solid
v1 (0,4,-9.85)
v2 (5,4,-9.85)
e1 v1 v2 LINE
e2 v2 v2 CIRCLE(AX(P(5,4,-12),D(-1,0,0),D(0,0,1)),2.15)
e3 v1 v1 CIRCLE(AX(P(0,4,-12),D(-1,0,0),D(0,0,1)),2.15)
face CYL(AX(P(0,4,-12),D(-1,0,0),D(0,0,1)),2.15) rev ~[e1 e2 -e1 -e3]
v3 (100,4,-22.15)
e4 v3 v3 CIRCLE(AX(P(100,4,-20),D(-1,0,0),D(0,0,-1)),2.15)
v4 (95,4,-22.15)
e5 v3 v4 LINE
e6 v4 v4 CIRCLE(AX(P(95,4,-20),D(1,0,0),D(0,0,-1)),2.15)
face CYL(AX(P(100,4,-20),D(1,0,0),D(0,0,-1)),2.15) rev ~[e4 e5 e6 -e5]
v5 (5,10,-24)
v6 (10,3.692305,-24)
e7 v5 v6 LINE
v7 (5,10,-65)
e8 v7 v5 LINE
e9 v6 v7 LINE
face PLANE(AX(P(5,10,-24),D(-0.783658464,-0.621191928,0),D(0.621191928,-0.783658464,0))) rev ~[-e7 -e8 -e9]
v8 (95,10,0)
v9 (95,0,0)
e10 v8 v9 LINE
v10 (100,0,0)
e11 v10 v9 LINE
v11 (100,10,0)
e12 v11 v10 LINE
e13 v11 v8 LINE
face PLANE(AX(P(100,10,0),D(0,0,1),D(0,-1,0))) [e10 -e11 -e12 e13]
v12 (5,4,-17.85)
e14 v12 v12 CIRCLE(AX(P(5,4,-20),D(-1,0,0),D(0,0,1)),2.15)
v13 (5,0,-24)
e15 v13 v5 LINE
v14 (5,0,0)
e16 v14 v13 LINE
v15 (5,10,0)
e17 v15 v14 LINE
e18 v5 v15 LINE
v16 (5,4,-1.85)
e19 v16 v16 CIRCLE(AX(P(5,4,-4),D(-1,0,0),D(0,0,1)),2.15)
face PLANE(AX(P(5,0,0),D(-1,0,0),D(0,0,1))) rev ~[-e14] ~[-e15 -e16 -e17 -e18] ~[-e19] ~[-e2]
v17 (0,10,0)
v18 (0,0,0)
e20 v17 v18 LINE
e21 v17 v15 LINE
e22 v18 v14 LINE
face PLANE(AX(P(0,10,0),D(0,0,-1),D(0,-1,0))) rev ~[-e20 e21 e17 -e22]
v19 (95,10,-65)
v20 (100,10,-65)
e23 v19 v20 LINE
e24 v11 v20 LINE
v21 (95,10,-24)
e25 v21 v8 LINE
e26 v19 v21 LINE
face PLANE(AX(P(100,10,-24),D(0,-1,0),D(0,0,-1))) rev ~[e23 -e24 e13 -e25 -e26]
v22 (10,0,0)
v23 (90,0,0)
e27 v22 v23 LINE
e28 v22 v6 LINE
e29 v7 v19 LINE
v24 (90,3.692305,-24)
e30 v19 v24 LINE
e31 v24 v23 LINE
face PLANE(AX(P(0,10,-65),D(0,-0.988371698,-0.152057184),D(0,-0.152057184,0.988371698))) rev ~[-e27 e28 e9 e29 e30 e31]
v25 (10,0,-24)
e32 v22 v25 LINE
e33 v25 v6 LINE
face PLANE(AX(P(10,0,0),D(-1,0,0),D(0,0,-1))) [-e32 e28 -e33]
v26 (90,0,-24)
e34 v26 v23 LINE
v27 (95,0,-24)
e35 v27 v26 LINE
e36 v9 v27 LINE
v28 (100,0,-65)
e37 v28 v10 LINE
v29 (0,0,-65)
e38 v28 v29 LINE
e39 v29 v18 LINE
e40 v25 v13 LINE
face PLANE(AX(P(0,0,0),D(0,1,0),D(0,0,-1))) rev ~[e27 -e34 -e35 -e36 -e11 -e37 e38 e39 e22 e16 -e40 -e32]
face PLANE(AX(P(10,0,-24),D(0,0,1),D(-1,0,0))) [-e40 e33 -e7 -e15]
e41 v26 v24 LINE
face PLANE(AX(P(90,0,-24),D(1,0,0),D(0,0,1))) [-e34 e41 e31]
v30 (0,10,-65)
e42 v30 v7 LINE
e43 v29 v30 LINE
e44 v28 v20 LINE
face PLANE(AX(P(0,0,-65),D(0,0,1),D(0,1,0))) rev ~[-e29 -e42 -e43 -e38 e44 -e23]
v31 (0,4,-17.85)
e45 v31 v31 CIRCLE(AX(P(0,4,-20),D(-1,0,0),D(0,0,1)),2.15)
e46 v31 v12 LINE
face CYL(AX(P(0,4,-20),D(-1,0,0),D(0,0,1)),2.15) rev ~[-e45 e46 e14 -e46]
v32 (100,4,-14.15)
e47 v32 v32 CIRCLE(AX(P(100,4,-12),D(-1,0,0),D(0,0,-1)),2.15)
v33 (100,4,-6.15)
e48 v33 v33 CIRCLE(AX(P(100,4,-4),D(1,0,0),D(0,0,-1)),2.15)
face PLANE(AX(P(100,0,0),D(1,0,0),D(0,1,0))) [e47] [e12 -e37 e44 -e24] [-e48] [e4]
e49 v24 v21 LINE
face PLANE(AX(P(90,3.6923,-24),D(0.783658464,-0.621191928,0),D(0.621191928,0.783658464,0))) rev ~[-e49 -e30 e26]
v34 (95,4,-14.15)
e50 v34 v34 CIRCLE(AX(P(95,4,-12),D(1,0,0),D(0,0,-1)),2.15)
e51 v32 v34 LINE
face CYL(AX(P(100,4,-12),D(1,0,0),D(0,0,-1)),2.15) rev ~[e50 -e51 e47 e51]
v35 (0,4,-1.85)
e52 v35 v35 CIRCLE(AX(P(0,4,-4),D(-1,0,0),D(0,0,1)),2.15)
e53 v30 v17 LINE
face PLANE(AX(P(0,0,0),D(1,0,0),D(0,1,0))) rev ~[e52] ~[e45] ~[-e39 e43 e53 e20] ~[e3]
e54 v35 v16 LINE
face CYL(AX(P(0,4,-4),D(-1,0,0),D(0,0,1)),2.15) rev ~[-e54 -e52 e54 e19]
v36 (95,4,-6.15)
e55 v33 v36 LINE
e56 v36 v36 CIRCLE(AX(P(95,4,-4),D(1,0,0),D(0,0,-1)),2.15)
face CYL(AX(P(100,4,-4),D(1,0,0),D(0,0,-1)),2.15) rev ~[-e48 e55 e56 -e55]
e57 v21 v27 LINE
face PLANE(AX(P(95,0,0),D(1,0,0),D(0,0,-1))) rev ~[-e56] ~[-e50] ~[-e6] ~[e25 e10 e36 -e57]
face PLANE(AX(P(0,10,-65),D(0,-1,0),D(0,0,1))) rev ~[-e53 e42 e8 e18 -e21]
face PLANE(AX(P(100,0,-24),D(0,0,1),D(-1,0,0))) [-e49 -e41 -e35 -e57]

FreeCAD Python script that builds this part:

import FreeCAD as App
import Part
import Sketcher
from FreeCAD import Vector


def add_polygon(sketch, points):
    """Adds a closed chain of lines whose ends are joined by coincident constraints."""
    first, n = sketch.GeometryCount, len(points)
    for a, b in zip(points, points[1:] + points[:1]):
        sketch.addGeometry(Part.LineSegment(App.Vector(*a, 0), App.Vector(*b, 0)), False)
    for i in range(n):
        sketch.addConstraint(Sketcher.Constraint("Coincident", first + i, 2, first + (i + 1) % n, 1))

doc = App.newDocument("Part")
body = doc.addObject("PartDesign::Body", "Body")

sketch1 = body.newObject("Sketcher::SketchObject", "Sketch")
sketch1.AttachmentSupport = (doc.getObject("YZ_Plane"), [""])
sketch1.MapMode = "FlatFace"
add_polygon(sketch1, [(10, -65), (0, 0), (0, -65)])
sketch1.addConstraint(Sketcher.Constraint("Vertical", 1))
sketch1.addConstraint(Sketcher.Constraint("Horizontal", 2))
sketch1.addConstraint(Sketcher.Constraint("Coincident", 0, 2, -1, 1))
sketch1.addConstraint(Sketcher.Constraint("DistanceX", 2, 1, 2, 2, 10.0))
sketch1.addConstraint(Sketcher.Constraint("DistanceY", 1, 2, 1, 1, 65.0))
pad1 = body.newObject("PartDesign::Pad", "Pad")
pad1.Profile = sketch1
pad1.Length = 100

sketch2 = body.newObject("Sketcher::SketchObject", "Sketch001")
sketch2.AttachmentSupport = (doc.getObject("XZ_Plane"), [""])
sketch2.MapMode = "FlatFace"
add_polygon(sketch2, [(100, 0), (90, 0), (90, -24), (100, -24)])
sketch2.addConstraint(Sketcher.Constraint("Horizontal", 0))
sketch2.addConstraint(Sketcher.Constraint("Vertical", 1))
sketch2.addConstraint(Sketcher.Constraint("Horizontal", 2))
sketch2.addConstraint(Sketcher.Constraint("Vertical", 3))
sketch2.addConstraint(Sketcher.Constraint("PointOnObject", 0, 2, -1))
sketch2.addConstraint(Sketcher.Constraint("DistanceX", 0, 2, 0, 1, 10.0))
sketch2.addConstraint(Sketcher.Constraint("DistanceY", 1, 2, 1, 1, 24.0))
sketch2.addConstraint(Sketcher.Constraint("DistanceX", -1, 1, 0, 2, 90.0))
pocket1 = body.newObject("PartDesign::Pocket", "Pocket")
pocket1.Profile = sketch2
pocket1.Length = 5

sketch3 = body.newObject("Sketcher::SketchObject", "Sketch002")
sketch3.AttachmentSupport = (doc.getObject("YZ_Plane"), [""])
sketch3.MapMode = "FlatFace"
sketch3.AttachmentOffset = App.Placement(Vector(0, 0, 100), App.Rotation())
add_polygon(sketch3, [(3.692308, -23.999999), (10, -65), (10, 0), (0, 0), (0, -24)])
sketch3.addGeometry(Part.Circle(Vector(4, -20, 0), Vector(0, 0, 1), 2.15), False)
sketch3.addGeometry(Part.Circle(Vector(4, -12, 0), Vector(0, 0, 1), 2.15), False)
sketch3.addGeometry(Part.Circle(Vector(4, -4, 0), Vector(0, 0, 1), 2.15), False)
sketch3.addConstraint(Sketcher.Constraint("Vertical", 1))
sketch3.addConstraint(Sketcher.Constraint("Horizontal", 2))
sketch3.addConstraint(Sketcher.Constraint("Vertical", 3))
sketch3.addConstraint(Sketcher.Constraint("Horizontal", 4))
sketch3.addConstraint(Sketcher.Constraint("Coincident", 2, 2, -1, 1))
sketch3.addConstraint(Sketcher.Constraint("Equal", 5, 6))
sketch3.addConstraint(Sketcher.Constraint("Equal", 6, 7))
sketch3.addConstraint(Sketcher.Constraint("Vertical", 5, 3, 6, 3))
sketch3.addConstraint(Sketcher.Constraint("Vertical", 6, 3, 7, 3))
sketch3.addConstraint(Sketcher.Constraint("Diameter", 5, 4.3))
sketch3.addConstraint(Sketcher.Constraint("DistanceX", 2, 2, 2, 1, 10.0))
sketch3.addConstraint(Sketcher.Constraint("DistanceY", 3, 2, 3, 1, 24.0))
sketch3.addConstraint(Sketcher.Constraint("DistanceX", -1, 1, 5, 3, 4.0))
sketch3.addConstraint(Sketcher.Constraint("DistanceY", 7, 3, -1, 1, 4.0))
sketch3.addConstraint(Sketcher.Constraint("DistanceY", 5, 3, 6, 3, 8.0))
sketch3.addConstraint(Sketcher.Constraint("DistanceY", 6, 3, 7, 3, 8.0))
sketch3.addConstraint(Sketcher.Constraint("DistanceY", 1, 1, 1, 2, 65.0))
sketch3.addConstraint(Sketcher.Constraint("DistanceX", 4, 1, 4, 2, 3.6923))
pad2 = body.newObject("PartDesign::Pad", "Pad001")
pad2.Profile = sketch3
pad2.Length = 5
pad2.Reversed = True

sketch4 = body.newObject("Sketcher::SketchObject", "Sketch003")
sketch4.AttachmentSupport = (doc.getObject("XZ_Plane"), [""])
sketch4.MapMode = "FlatFace"
add_polygon(sketch4, [(10, 0), (0, 0), (0, -24), (10, -24)])
sketch4.addConstraint(Sketcher.Constraint("Horizontal", 0))
sketch4.addConstraint(Sketcher.Constraint("Vertical", 1))
sketch4.addConstraint(Sketcher.Constraint("Horizontal", 2))
sketch4.addConstraint(Sketcher.Constraint("Vertical", 3))
sketch4.addConstraint(Sketcher.Constraint("Coincident", 0, 2, -1, 1))
sketch4.addConstraint(Sketcher.Constraint("DistanceX", 0, 2, 0, 1, 10.0))
sketch4.addConstraint(Sketcher.Constraint("DistanceY", 1, 2, 1, 1, 24.0))
pocket2 = body.newObject("PartDesign::Pocket", "Pocket001")
pocket2.Profile = sketch4
pocket2.Length = 5

sketch5 = body.newObject("Sketcher::SketchObject", "Sketch004")
sketch5.AttachmentSupport = (doc.getObject("YZ_Plane"), [""])
sketch5.MapMode = "FlatFace"
add_polygon(sketch5, [(10, -65), (0, -65), (0, 0), (10, 0)])
sketch5.addGeometry(Part.Circle(Vector(4, -20, 0), Vector(0, 0, 1), 2.15), False)
sketch5.addGeometry(Part.Circle(Vector(4, -12, 0), Vector(0, 0, 1), 2.15), False)
sketch5.addGeometry(Part.Circle(Vector(4, -4, 0), Vector(0, 0, 1), 2.15), False)
sketch5.addConstraint(Sketcher.Constraint("Horizontal", 0))
sketch5.addConstraint(Sketcher.Constraint("Vertical", 1))
sketch5.addConstraint(Sketcher.Constraint("Horizontal", 2))
sketch5.addConstraint(Sketcher.Constraint("Vertical", 3))
sketch5.addConstraint(Sketcher.Constraint("Coincident", 1, 2, -1, 1))
sketch5.addConstraint(Sketcher.Constraint("Equal", 4, 5))
sketch5.addConstraint(Sketcher.Constraint("Equal", 5, 6))
sketch5.addConstraint(Sketcher.Constraint("Vertical", 4, 3, 5, 3))
sketch5.addConstraint(Sketcher.Constraint("Vertical", 5, 3, 6, 3))
sketch5.addConstraint(Sketcher.Constraint("Diameter", 4, 4.3))
sketch5.addConstraint(Sketcher.Constraint("DistanceX", -1, 1, 4, 3, 4.0))
sketch5.addConstraint(Sketcher.Constraint("DistanceY", 6, 3, -1, 1, 4.0))
sketch5.addConstraint(Sketcher.Constraint("DistanceY", 4, 3, 5, 3, 8.0))
sketch5.addConstraint(Sketcher.Constraint("DistanceY", 5, 3, 6, 3, 8.0))
sketch5.addConstraint(Sketcher.Constraint("DistanceX", 0, 2, 0, 1, 10.0))
sketch5.addConstraint(Sketcher.Constraint("DistanceY", 1, 1, 1, 2, 65.0))
pad3 = body.newObject("PartDesign::Pad", "Pad002")
pad3.Profile = sketch5
pad3.Length = 5

sketch6 = body.newObject("Sketcher::SketchObject", "Sketch005")
sketch6.AttachmentSupport = (doc.getObject("XY_Plane"), [""])
sketch6.MapMode = "FlatFace"
sketch6.AttachmentOffset = App.Placement(Vector(0, 0, -24), App.Rotation())
add_polygon(sketch6, [(10, 3.6923), (5, 10), (5, 3.6923)])
sketch6.addConstraint(Sketcher.Constraint("Vertical", 1))
sketch6.addConstraint(Sketcher.Constraint("Horizontal", 2))
sketch6.addConstraint(Sketcher.Constraint("DistanceX", 2, 1, 2, 2, 5.0))
sketch6.addConstraint(Sketcher.Constraint("DistanceX", -1, 1, 0, 2, 5.0))
sketch6.addConstraint(Sketcher.Constraint("DistanceY", -1, 1, 0, 2, 10.0))
sketch6.addConstraint(Sketcher.Constraint("Distance", 0, 8.049))
pad4 = body.newObject("PartDesign::Pad", "Pad003")
pad4.Profile = sketch6
pad4.Length = 41
pad4.Reversed = True

sketch7 = body.newObject("Sketcher::SketchObject", "Sketch006")
sketch7.AttachmentSupport = (doc.getObject("XY_Plane"), [""])
sketch7.MapMode = "FlatFace"
sketch7.AttachmentOffset = App.Placement(Vector(0, 0, -24), App.Rotation())
add_polygon(sketch7, [(95, 10), (90, 3.6923), (95, 3.6923)])
sketch7.addConstraint(Sketcher.Constraint("Horizontal", 1))
sketch7.addConstraint(Sketcher.Constraint("Vertical", 2))
sketch7.addConstraint(Sketcher.Constraint("DistanceX", 1, 1, 1, 2, 5.0))
sketch7.addConstraint(Sketcher.Constraint("DistanceX", -1, 1, 0, 2, 90.0))
sketch7.addConstraint(Sketcher.Constraint("DistanceY", -1, 1, 2, 2, 10.0))
sketch7.addConstraint(Sketcher.Constraint("Distance", 0, 8.049))
pad5 = body.newObject("PartDesign::Pad", "Pad004")
pad5.Profile = sketch7
pad5.Length = 41
pad5.Reversed = True

doc.recompute()
